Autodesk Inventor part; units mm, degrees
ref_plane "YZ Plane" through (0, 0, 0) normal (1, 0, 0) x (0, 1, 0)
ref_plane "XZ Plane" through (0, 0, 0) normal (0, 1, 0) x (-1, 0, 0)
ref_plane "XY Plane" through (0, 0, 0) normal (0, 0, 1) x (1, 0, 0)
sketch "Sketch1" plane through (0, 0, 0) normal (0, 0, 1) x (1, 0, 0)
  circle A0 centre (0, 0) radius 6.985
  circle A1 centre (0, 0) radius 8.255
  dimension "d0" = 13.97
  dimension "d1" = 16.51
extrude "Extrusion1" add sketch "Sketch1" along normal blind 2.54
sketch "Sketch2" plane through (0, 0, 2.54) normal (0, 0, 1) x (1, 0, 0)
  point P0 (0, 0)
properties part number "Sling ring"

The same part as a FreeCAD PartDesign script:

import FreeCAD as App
import Part
import Sketcher
from FreeCAD import Vector
Q = App.Units.Quantity

doc = App.newDocument("Part")
body = doc.addObject("PartDesign::Body", "Body")

# Sketch on XY plane
sketch1 = body.newObject("Sketcher::SketchObject", "Sketch")
sketch1.AttachmentSupport = (doc.getObject("XY_Plane"), [""])
sketch1.MapMode = "FlatFace"
sketch1.addGeometry([
    Part.Circle(Vector(0, 0, 0), Vector(0, 0, 1), 8),
    Part.Circle(Vector(0, 0, 0), Vector(0, 0, 1), 7),
], False)
sketch1.addConstraint([
    Sketcher.Constraint("Coincident", 0, 3, -1, 1),
    Sketcher.Constraint("Coincident", 1, 3, -1, 1),
    Sketcher.Constraint("Diameter", 0, Q("0.65 in")),
    Sketcher.Constraint("Diameter", 1, Q("0.55 in")),
])
pad1 = body.newObject("PartDesign::Pad", "Pad")
pad1.Profile = sketch1
pad1.Length = Q("0.1 in")

doc.recompute()
